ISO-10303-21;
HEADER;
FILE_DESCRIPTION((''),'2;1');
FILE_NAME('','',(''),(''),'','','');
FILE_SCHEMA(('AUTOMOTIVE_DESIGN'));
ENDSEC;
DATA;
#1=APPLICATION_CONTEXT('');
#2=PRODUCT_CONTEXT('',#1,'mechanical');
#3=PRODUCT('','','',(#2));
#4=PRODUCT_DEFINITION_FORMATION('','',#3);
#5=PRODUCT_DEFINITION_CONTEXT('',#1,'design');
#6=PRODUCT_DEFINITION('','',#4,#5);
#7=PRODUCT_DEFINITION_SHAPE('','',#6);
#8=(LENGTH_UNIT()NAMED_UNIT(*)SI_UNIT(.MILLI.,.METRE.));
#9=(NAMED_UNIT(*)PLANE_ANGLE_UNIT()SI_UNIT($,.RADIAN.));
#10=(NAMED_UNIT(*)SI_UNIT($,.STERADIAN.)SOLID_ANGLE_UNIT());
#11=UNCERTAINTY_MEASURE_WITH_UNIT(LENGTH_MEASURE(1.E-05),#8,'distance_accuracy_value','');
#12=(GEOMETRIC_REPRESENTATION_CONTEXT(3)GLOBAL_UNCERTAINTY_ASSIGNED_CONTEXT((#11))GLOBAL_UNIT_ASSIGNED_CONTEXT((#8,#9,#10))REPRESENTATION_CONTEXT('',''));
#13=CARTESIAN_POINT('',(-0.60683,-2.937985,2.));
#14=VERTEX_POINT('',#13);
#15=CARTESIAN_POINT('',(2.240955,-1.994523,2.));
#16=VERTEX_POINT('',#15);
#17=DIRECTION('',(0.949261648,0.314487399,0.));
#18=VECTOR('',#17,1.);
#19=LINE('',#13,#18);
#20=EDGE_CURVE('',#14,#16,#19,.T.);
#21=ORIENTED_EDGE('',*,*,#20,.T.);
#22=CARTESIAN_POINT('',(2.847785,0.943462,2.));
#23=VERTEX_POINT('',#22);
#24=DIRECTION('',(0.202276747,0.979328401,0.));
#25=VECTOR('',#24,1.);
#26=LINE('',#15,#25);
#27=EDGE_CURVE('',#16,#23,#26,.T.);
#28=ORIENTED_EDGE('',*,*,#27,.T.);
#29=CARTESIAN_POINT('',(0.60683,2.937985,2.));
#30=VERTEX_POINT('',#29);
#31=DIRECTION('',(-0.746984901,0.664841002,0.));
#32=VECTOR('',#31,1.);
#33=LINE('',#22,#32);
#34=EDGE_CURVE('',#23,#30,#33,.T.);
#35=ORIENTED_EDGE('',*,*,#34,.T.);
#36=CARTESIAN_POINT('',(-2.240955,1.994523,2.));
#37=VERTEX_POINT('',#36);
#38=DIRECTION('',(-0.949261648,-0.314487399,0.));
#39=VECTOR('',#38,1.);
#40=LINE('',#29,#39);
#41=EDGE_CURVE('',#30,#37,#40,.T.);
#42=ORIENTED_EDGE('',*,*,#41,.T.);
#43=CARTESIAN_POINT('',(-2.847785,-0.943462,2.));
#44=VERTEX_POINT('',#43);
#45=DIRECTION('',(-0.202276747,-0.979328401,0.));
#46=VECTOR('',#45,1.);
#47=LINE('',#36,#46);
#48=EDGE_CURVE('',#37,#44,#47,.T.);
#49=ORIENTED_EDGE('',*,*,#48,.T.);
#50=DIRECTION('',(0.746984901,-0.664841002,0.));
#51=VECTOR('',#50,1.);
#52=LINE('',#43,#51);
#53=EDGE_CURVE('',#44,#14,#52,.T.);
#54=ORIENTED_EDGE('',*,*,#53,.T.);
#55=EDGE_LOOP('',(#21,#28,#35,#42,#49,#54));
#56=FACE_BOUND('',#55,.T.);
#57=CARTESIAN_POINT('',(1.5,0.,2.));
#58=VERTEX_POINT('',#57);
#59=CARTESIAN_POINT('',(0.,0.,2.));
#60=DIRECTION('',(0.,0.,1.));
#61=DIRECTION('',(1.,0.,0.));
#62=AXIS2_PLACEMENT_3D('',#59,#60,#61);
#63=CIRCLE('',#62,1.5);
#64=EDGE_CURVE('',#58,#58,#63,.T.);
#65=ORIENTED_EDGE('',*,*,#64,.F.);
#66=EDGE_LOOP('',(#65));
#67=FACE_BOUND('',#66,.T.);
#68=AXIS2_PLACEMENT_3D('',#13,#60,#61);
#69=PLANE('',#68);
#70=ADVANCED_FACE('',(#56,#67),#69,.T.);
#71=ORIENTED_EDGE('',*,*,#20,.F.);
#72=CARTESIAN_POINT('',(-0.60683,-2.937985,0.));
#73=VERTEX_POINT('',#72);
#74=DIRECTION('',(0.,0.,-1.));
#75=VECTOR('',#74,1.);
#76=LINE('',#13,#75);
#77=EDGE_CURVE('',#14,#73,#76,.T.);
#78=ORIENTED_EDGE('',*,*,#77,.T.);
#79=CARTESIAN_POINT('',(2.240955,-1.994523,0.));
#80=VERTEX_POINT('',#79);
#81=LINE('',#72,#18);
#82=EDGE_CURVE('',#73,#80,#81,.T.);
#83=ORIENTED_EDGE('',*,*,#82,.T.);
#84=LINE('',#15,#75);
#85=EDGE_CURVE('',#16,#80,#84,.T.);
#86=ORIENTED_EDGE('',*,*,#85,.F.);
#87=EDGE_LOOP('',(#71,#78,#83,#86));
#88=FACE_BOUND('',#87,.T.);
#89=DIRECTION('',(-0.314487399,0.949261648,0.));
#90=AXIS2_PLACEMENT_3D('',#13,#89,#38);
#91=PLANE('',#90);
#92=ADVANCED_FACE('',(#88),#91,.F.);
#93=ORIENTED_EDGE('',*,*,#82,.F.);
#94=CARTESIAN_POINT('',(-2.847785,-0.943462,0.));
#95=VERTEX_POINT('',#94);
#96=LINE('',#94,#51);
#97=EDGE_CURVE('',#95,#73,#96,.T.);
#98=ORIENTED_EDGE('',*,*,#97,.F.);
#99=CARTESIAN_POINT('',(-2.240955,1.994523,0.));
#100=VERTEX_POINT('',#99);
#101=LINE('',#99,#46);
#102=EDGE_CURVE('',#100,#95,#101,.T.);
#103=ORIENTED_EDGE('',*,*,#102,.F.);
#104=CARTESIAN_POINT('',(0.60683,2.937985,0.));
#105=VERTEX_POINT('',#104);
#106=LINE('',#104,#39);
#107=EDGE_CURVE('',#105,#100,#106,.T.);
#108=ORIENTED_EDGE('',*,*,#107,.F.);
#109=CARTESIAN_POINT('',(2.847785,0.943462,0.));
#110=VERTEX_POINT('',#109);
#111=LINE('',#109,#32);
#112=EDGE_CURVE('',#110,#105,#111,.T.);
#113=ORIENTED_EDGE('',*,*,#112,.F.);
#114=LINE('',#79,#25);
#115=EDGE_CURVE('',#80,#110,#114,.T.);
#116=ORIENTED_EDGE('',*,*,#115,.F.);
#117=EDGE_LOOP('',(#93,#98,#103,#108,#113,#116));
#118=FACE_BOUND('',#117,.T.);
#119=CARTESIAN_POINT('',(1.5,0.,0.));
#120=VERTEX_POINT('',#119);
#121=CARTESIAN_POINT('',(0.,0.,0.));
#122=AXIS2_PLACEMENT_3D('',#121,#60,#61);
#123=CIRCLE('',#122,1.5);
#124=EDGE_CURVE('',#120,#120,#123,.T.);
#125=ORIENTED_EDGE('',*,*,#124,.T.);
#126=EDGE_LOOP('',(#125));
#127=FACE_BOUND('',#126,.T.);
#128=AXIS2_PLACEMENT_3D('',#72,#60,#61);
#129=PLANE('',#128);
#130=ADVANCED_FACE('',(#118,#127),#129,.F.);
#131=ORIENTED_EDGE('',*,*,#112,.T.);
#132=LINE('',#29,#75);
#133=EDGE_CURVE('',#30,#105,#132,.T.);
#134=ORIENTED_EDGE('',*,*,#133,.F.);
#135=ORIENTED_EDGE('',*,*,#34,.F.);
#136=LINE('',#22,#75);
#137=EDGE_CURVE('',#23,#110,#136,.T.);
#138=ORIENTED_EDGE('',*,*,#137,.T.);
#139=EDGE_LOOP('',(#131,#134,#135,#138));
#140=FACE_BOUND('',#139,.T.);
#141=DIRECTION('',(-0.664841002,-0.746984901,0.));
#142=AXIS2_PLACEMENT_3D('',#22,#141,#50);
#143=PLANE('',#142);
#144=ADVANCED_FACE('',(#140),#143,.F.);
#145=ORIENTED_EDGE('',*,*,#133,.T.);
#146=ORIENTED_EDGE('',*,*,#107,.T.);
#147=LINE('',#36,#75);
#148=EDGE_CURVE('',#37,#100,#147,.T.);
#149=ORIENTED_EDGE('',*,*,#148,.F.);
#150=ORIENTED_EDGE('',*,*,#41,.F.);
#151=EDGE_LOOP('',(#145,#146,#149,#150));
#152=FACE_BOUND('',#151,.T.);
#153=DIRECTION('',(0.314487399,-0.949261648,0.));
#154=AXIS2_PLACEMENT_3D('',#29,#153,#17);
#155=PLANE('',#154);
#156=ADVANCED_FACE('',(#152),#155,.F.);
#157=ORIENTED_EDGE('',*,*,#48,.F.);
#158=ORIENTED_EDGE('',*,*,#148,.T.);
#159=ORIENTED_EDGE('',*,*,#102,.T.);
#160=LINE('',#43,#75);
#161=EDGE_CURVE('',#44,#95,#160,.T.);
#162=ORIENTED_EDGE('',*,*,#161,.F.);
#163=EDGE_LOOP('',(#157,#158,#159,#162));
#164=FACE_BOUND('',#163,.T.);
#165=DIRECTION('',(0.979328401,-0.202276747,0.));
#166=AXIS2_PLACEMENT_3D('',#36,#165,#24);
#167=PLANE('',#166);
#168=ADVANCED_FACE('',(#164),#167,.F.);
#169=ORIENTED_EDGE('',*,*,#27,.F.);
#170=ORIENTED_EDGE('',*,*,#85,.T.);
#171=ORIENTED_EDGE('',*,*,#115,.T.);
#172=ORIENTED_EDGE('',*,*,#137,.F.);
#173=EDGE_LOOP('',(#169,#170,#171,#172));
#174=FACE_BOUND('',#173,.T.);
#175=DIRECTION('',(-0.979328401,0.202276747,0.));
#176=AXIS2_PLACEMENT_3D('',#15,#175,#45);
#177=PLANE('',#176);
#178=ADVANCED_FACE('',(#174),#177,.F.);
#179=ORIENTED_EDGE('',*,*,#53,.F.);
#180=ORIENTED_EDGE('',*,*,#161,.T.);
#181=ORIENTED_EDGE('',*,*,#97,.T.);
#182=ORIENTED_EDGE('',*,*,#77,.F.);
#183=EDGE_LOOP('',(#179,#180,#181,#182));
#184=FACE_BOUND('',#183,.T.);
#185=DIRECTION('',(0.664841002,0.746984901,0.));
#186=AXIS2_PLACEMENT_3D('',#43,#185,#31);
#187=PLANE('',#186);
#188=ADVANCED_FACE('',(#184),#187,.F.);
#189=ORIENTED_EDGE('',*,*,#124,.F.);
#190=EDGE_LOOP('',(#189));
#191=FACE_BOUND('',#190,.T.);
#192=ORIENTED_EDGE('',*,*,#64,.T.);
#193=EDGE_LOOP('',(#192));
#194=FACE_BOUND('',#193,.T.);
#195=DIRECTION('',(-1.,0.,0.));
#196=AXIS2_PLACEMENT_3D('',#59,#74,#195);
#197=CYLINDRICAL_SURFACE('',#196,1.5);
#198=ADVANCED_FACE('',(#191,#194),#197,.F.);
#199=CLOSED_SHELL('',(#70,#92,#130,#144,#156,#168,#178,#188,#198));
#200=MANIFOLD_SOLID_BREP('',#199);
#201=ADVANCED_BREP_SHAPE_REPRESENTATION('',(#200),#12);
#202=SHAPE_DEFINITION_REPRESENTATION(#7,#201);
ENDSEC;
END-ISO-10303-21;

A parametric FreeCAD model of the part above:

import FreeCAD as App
import Part
import Sketcher
Q = App.Units.Quantity


def add_polygon(sketch, points):
    """Adds a closed chain of lines whose ends are joined by coincident constraints."""
    first, n = sketch.GeometryCount, len(points)
    for a, b in zip(points, points[1:] + points[:1]):
        sketch.addGeometry(Part.LineSegment(App.Vector(*a, 0), App.Vector(*b, 0)), False)
    for i in range(n):
        sketch.addConstraint(Sketcher.Constraint("Coincident", first + i, 2, first + (i + 1) % n, 1))

doc = App.newDocument("Part")
params = doc.addObject("Spreadsheet::Sheet", "Params")
for row, (alias, value) in enumerate([
    ("sketch1_diameter", "3 mm"),
    ("sketch1_length", "3 mm"),
    ("pad1_length", "2 mm"),
], start=1):
    params.set(f"A{row}", alias)
    params.set(f"B{row}", "=" + value)
    params.setAlias(f"B{row}", alias)

body = doc.addObject("PartDesign::Body", "Body")

# Sketch on XY plane
sketch1 = body.newObject("Sketcher::SketchObject", "Sketch")
sketch1.AttachmentSupport = (doc.getObject("XY_Plane"), [""])
sketch1.MapMode = "FlatFace"
add_polygon(sketch1, [(-0.6, -2.9), (2.2, -2), (2.8, 0.9), (0.6, 2.9), (-2.2, 2), (-2.8, -0.9)])  # lines 0-5
sketch1.addGeometry(Part.Circle(App.Vector(0, 0, 0), App.Vector(0, 0, 1), 1.5), False)  # 6
sketch1.addConstraint([
    Sketcher.Constraint("Coincident", 6, 3, -1, 1),
    Sketcher.Constraint("Symmetric", 0, 2, 3, 2, -1, 1),
    Sketcher.Constraint("Symmetric", 1, 2, 4, 2, -1, 1),
    Sketcher.Constraint("Symmetric", 2, 2, 5, 2, -1, 1),
    Sketcher.Constraint("Equal", 0, 1),
    Sketcher.Constraint("Equal", 1, 2),
    Sketcher.Constraint("Diameter", 6, Q("3 mm")),
    Sketcher.Constraint("Distance", 0, Q("3 mm")),
    Sketcher.Constraint("DistanceX", -1, 1, 2, 2, Q("0.60683 mm")),
    Sketcher.Constraint("DistanceX", 0, 2, 1, 2, Q("0.60683 mm")),
    Sketcher.Constraint("DistanceY", 0, 2, 2, 2, Q("4.932508 mm")),
])
sketch1.setExpression("Constraints[12]", "Params.sketch1_diameter")
sketch1.setExpression("Constraints[13]", "Params.sketch1_length")
pad1 = body.newObject("PartDesign::Pad", "Pad")
pad1.Profile = sketch1
pad1.setExpression("Length", "Params.pad1_length")

doc.recompute()
